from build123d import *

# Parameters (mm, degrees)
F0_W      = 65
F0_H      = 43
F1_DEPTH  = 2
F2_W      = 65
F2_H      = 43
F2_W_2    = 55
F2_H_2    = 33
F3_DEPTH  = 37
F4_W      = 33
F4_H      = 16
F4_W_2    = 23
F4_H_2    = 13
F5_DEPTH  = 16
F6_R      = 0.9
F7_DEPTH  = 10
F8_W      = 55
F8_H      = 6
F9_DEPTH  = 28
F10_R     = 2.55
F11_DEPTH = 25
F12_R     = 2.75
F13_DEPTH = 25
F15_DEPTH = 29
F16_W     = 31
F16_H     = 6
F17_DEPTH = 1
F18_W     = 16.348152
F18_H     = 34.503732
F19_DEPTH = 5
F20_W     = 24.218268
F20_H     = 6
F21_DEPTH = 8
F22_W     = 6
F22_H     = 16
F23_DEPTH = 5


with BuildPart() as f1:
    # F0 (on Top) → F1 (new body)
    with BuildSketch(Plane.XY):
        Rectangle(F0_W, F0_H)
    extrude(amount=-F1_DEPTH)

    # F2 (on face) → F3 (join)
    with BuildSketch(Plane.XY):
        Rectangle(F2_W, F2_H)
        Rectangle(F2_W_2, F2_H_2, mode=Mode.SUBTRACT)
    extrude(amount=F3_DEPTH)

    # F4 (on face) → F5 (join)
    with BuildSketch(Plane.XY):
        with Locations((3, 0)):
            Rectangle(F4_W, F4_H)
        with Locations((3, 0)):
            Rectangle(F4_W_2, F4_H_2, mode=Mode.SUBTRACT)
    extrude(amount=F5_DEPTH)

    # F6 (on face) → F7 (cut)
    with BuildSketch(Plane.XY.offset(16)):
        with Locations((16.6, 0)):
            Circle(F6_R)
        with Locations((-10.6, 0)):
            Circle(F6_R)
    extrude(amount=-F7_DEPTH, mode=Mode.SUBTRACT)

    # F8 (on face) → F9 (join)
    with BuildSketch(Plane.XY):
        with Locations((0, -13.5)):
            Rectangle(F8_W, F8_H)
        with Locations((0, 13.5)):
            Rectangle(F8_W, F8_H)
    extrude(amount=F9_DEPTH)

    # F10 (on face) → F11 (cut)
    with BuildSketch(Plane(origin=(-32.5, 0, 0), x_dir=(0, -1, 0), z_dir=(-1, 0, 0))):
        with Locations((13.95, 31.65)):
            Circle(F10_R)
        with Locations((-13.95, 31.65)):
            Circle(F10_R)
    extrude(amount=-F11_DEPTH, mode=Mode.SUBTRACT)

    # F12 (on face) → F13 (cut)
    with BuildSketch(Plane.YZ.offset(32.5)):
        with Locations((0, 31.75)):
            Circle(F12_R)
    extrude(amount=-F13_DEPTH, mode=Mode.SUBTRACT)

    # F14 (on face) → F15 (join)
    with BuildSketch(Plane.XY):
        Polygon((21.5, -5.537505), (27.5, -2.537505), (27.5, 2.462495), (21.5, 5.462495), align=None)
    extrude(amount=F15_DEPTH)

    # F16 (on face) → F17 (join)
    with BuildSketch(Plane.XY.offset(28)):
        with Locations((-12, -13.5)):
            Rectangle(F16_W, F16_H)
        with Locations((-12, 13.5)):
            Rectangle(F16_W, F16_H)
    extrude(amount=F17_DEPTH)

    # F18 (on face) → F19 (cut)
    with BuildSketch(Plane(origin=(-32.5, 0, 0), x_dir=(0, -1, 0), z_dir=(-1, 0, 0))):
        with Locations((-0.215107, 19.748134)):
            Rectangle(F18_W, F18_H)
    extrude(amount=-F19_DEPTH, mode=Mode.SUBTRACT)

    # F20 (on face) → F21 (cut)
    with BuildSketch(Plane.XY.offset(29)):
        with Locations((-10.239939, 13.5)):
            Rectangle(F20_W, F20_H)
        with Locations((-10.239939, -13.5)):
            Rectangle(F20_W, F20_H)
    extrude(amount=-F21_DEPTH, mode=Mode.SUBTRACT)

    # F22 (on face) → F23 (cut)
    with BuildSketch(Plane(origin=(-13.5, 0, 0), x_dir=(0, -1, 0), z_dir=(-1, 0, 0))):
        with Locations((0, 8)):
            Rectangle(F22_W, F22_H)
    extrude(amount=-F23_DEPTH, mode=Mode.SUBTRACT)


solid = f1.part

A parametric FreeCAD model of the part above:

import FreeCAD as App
import Part
import Sketcher

doc = App.newDocument("Part")
params = doc.addObject("Spreadsheet::Sheet", "Params")
for row, (alias, value) in enumerate([
    ("sketch1_width", "65 mm"),
    ("sketch1_height", "43 mm"),
    ("pad1_length", "2 mm"),
    ("sketch2_width", "65 mm"),
    ("sketch2_width2", "55 mm"),
    ("sketch2_height", "43 mm"),
    ("sketch2_height2", "33 mm"),
    ("pad2_length", "37 mm"),
    ("sketch3_width", "33 mm"),
    ("sketch3_width2", "23 mm"),
    ("sketch3_height", "16 mm"),
    ("sketch3_height2", "13 mm"),
    ("pad3_length", "16 mm"),
    ("sketch4_diameter", "1.8 mm"),
    ("pocket1_length", "10 mm"),
    ("sketch5_width", "55 mm"),
    ("sketch5_height", "6 mm"),
    ("pad4_length", "28 mm"),
    ("sketch6_diameter", "5.1 mm"),
    ("pocket2_length", "25 mm"),
    ("sketch7_diameter", "5.5 mm"),
    ("pocket3_length", "25 mm"),
    ("sketch8_height", "5 mm"),
    ("sketch8_height2", "11 mm"),
    ("pad5_length", "29 mm"),
    ("sketch9_width", "31 mm"),
    ("sketch9_height", "6 mm"),
    ("pad6_length", "1 mm"),
    ("pocket4_length", "5 mm"),
    ("sketch11_height", "6 mm"),
    ("pocket5_length", "8 mm"),
    ("sketch12_width", "6 mm"),
    ("sketch12_height", "16 mm"),
    ("pocket6_length", "5 mm"),
], start=1):
    params.set(f"A{row}", alias)
    params.set(f"B{row}", "=" + value)
    params.setAlias(f"B{row}", alias)

body = doc.addObject("PartDesign::Body", "Body")

sketch1 = body.newObject("Sketcher::SketchObject", "Sketch")
sketch1.AttachmentSupport = (doc.getObject("XY_Plane"), [""])
sketch1.MapMode = "FlatFace"
sketch1.addGeometry([
    Part.LineSegment(App.Vector(-32.5, 21.5, 0), App.Vector(-32.5, -21.5, 0)),
    Part.LineSegment(App.Vector(-32.5, -21.5, 0), App.Vector(32.5, -21.5, 0)),
    Part.LineSegment(App.Vector(32.5, -21.5, 0), App.Vector(32.5, 21.5, 0)),
    Part.LineSegment(App.Vector(32.5, 21.5, 0), App.Vector(-32.5, 21.5, 0)),
], False)
sketch1.addConstraint([
    Sketcher.Constraint("Coincident", 0, 2, 1, 1),
    Sketcher.Constraint("Coincident", 1, 2, 2, 1),
    Sketcher.Constraint("Coincident", 2, 2, 3, 1),
    Sketcher.Constraint("Coincident", 3, 2, 0, 1),
    Sketcher.Constraint("Vertical", 0),
    Sketcher.Constraint("Horizontal", 1),
    Sketcher.Constraint("Vertical", 2),
    Sketcher.Constraint("Horizontal", 3),
    Sketcher.Constraint("Symmetric", 0, 2, 2, 2, -1, 1),
    Sketcher.Constraint("DistanceX", 1, 1, 1, 2, 65.0),
    Sketcher.Constraint("DistanceY", 0, 2, 0, 1, 43.0),
])
sketch1.setExpression("Constraints[9]", "Params.sketch1_width")
sketch1.setExpression("Constraints[10]", "Params.sketch1_height")
pad1 = body.newObject("PartDesign::Pad", "Pad")
pad1.Profile = sketch1
pad1.setExpression("Length", "Params.pad1_length")
pad1.Reversed = True

sketch2 = body.newObject("Sketcher::SketchObject", "Sketch001")
sketch2.AttachmentSupport = (doc.getObject("XY_Plane"), [""])
sketch2.MapMode = "FlatFace"
sketch2.addGeometry([
    Part.LineSegment(App.Vector(-32.5, 21.5, 0), App.Vector(-32.5, -21.5, 0)),
    Part.LineSegment(App.Vector(-32.5, -21.5, 0), App.Vector(32.5, -21.5, 0)),
    Part.LineSegment(App.Vector(32.5, -21.5, 0), App.Vector(32.5, 21.5, 0)),
    Part.LineSegment(App.Vector(32.5, 21.5, 0), App.Vector(-32.5, 21.5, 0)),
    Part.LineSegment(App.Vector(27.5, -16.5, 0), App.Vector(-27.5, -16.5, 0)),
    Part.LineSegment(App.Vector(-27.5, -16.5, 0), App.Vector(-27.5, 16.5, 0)),
    Part.LineSegment(App.Vector(-27.5, 16.5, 0), App.Vector(27.5, 16.5, 0)),
    Part.LineSegment(App.Vector(27.5, 16.5, 0), App.Vector(27.5, -16.5, 0)),
], False)
sketch2.addConstraint([
    Sketcher.Constraint("Coincident", 0, 2, 1, 1),
    Sketcher.Constraint("Coincident", 1, 2, 2, 1),
    Sketcher.Constraint("Coincident", 2, 2, 3, 1),
    Sketcher.Constraint("Coincident", 3, 2, 0, 1),
    Sketcher.Constraint("Coincident", 4, 2, 5, 1),
    Sketcher.Constraint("Coincident", 5, 2, 6, 1),
    Sketcher.Constraint("Coincident", 6, 2, 7, 1),
    Sketcher.Constraint("Coincident", 7, 2, 4, 1),
    Sketcher.Constraint("Vertical", 0),
    Sketcher.Constraint("Horizontal", 1),
    Sketcher.Constraint("Vertical", 2),
    Sketcher.Constraint("Horizontal", 3),
    Sketcher.Constraint("Horizontal", 4),
    Sketcher.Constraint("Vertical", 5),
    Sketcher.Constraint("Horizontal", 6),
    Sketcher.Constraint("Vertical", 7),
    Sketcher.Constraint("Symmetric", 0, 2, 2, 2, -1, 1),
    Sketcher.Constraint("Symmetric", 4, 2, 6, 2, -1, 1),
    Sketcher.Constraint("DistanceX", 1, 1, 1, 2, 65.0),
    Sketcher.Constraint("DistanceX", 4, 2, 4, 1, 55.0),
    Sketcher.Constraint("DistanceY", 0, 2, 0, 1, 43.0),
    Sketcher.Constraint("DistanceY", 5, 1, 5, 2, 33.0),
])
sketch2.setExpression("Constraints[18]", "Params.sketch2_width")
sketch2.setExpression("Constraints[19]", "Params.sketch2_width2")
sketch2.setExpression("Constraints[20]", "Params.sketch2_height")
sketch2.setExpression("Constraints[21]", "Params.sketch2_height2")
pad2 = body.newObject("PartDesign::Pad", "Pad001")
pad2.Profile = sketch2
pad2.setExpression("Length", "Params.pad2_length")

sketch3 = body.newObject("Sketcher::SketchObject", "Sketch002")
sketch3.AttachmentSupport = (doc.getObject("XY_Plane"), [""])
sketch3.MapMode = "FlatFace"
sketch3.addGeometry([
    Part.LineSegment(App.Vector(-13.5, 8, 0), App.Vector(-13.5, -8, 0)),
    Part.LineSegment(App.Vector(-13.5, -8, 0), App.Vector(19.5, -8, 0)),
    Part.LineSegment(App.Vector(19.5, -8, 0), App.Vector(19.5, 8, 0)),
    Part.LineSegment(App.Vector(19.5, 8, 0), App.Vector(-13.5, 8, 0)),
    Part.LineSegment(App.Vector(14.5, -6.5, 0), App.Vector(-8.5, -6.5, 0)),
    Part.LineSegment(App.Vector(-8.5, -6.5, 0), App.Vector(-8.5, 6.5, 0)),
    Part.LineSegment(App.Vector(-8.5, 6.5, 0), App.Vector(14.5, 6.5, 0)),
    Part.LineSegment(App.Vector(14.5, 6.5, 0), App.Vector(14.5, -6.5, 0)),
], False)
sketch3.addConstraint([
    Sketcher.Constraint("Coincident", 0, 2, 1, 1),
    Sketcher.Constraint("Coincident", 1, 2, 2, 1),
    Sketcher.Constraint("Coincident", 2, 2, 3, 1),
    Sketcher.Constraint("Coincident", 3, 2, 0, 1),
    Sketcher.Constraint("Coincident", 4, 2, 5, 1),
    Sketcher.Constraint("Coincident", 5, 2, 6, 1),
    Sketcher.Constraint("Coincident", 6, 2, 7, 1),
    Sketcher.Constraint("Coincident", 7, 2, 4, 1),
    Sketcher.Constraint("Vertical", 0),
    Sketcher.Constraint("Horizontal", 1),
    Sketcher.Constraint("Vertical", 2),
    Sketcher.Constraint("Horizontal", 3),
    Sketcher.Constraint("Horizontal", 4),
    Sketcher.Constraint("Vertical", 5),
    Sketcher.Constraint("Horizontal", 6),
    Sketcher.Constraint("Vertical", 7),
    Sketcher.Constraint("DistanceX", 1, 1, 1, 2, 33.0),
    Sketcher.Constraint("DistanceX", 4, 2, 4, 1, 23.0),
    Sketcher.Constraint("DistanceY", 0, 2, 0, 1, 16.0),
    Sketcher.Constraint("DistanceY", 5, 1, 5, 2, 13.0),
    Sketcher.Constraint("DistanceY", 0, 2, -1, 1, 8.0),
    Sketcher.Constraint("DistanceX", 0, 2, 4, 2, 5.0),
    Sketcher.Constraint("DistanceX", 0, 2, -1, 1, 13.5),
    Sketcher.Constraint("DistanceY", 4, 2, -1, 1, 6.5),
])
sketch3.setExpression("Constraints[16]", "Params.sketch3_width")
sketch3.setExpression("Constraints[17]", "Params.sketch3_width2")
sketch3.setExpression("Constraints[18]", "Params.sketch3_height")
sketch3.setExpression("Constraints[19]", "Params.sketch3_height2")
pad3 = body.newObject("PartDesign::Pad", "Pad002")
pad3.Profile = sketch3
pad3.setExpression("Length", "Params.pad3_length")

sketch4 = body.newObject("Sketcher::SketchObject", "Sketch003")
sketch4.AttachmentSupport = (doc.getObject("XY_Plane"), [""])
sketch4.MapMode = "FlatFace"
sketch4.AttachmentOffset = App.Placement(App.Vector(0, 0, 16), App.Rotation())
sketch4.addGeometry([
    Part.Circle(App.Vector(16.6, 0, 0), App.Vector(0, 0, 1), 0.9),
    Part.Circle(App.Vector(-10.6, 0, 0), App.Vector(0, 0, 1), 0.9),
], False)
sketch4.addConstraint([
    Sketcher.Constraint("Equal", 0, 1),
    Sketcher.Constraint("PointOnObject", 0, 3, -1),
    Sketcher.Constraint("PointOnObject", 1, 3, -1),
    Sketcher.Constraint("Diameter", 0, 1.8),
    Sketcher.Constraint("DistanceX", -1, 1, 0, 3, 16.6),
    Sketcher.Constraint("DistanceX", 1, 3, -1, 1, 10.6),
])
sketch4.setExpression("Constraints[3]", "Params.sketch4_diameter")
pocket1 = body.newObject("PartDesign::Pocket", "Pocket")
pocket1.Profile = sketch4
pocket1.setExpression("Length", "Params.pocket1_length")

sketch5 = body.newObject("Sketcher::SketchObject", "Sketch004")
sketch5.AttachmentSupport = (doc.getObject("XY_Plane"), [""])
sketch5.MapMode = "FlatFace"
sketch5.addGeometry([
    Part.LineSegment(App.Vector(-27.5, -10.5, 0), App.Vector(-27.5, -16.5, 0)),
    Part.LineSegment(App.Vector(-27.5, -16.5, 0), App.Vector(27.5, -16.5, 0)),
    Part.LineSegment(App.Vector(27.5, -16.5, 0), App.Vector(27.5, -10.5, 0)),
    Part.LineSegment(App.Vector(27.5, -10.5, 0), App.Vector(-27.5, -10.5, 0)),
    Part.LineSegment(App.Vector(-27.5, 16.5, 0), App.Vector(-27.5, 10.5, 0)),
    Part.LineSegment(App.Vector(-27.5, 10.5, 0), App.Vector(27.5, 10.5, 0)),
    Part.LineSegment(App.Vector(27.5, 10.5, 0), App.Vector(27.5, 16.5, 0)),
    Part.LineSegment(App.Vector(27.5, 16.5, 0), App.Vector(-27.5, 16.5, 0)),
], False)
sketch5.addConstraint([
    Sketcher.Constraint("Coincident", 0, 2, 1, 1),
    Sketcher.Constraint("Coincident", 1, 2, 2, 1),
    Sketcher.Constraint("Coincident", 2, 2, 3, 1),
    Sketcher.Constraint("Coincident", 3, 2, 0, 1),
    Sketcher.Constraint("Coincident", 4, 2, 5, 1),
    Sketcher.Constraint("Coincident", 5, 2, 6, 1),
    Sketcher.Constraint("Coincident", 6, 2, 7, 1),
    Sketcher.Constraint("Coincident", 7, 2, 4, 1),
    Sketcher.Constraint("Vertical", 0),
    Sketcher.Constraint("Horizontal", 1),
    Sketcher.Constraint("Vertical", 2),
    Sketcher.Constraint("Horizontal", 3),
    Sketcher.Constraint("Vertical", 4),
    Sketcher.Constraint("Horizontal", 5),
    Sketcher.Constraint("Vertical", 6),
    Sketcher.Constraint("Horizontal", 7),
    Sketcher.Constraint("Symmetric", 2, 2, 4, 2, -1, 1),
    Sketcher.Constraint("Symmetric", 0, 2, 6, 2, -1, 1),
    Sketcher.Constraint("Vertical", 3, 2, 4, 2),
    Sketcher.Constraint("DistanceX", 1, 1, 1, 2, 55.0),
    Sketcher.Constraint("DistanceY", 0, 2, 0, 1, 6.0),
    Sketcher.Constraint("DistanceY", 3, 2, 4, 2, 21.0),
])
sketch5.setExpression("Constraints[19]", "Params.sketch5_width")
sketch5.setExpression("Constraints[20]", "Params.sketch5_height")
pad4 = body.newObject("PartDesign::Pad", "Pad003")
pad4.Profile = sketch5
pad4.setExpression("Length", "Params.pad4_length")

sketch6 = body.newObject("Sketcher::SketchObject", "Sketch005")
sketch6.AttachmentSupport = (doc.getObject("YZ_Plane"), [""])
sketch6.MapMode = "FlatFace"
sketch6.AttachmentOffset = App.Placement(App.Vector(0, 0, -32.5), App.Rotation())
sketch6.addGeometry([
    Part.Circle(App.Vector(-13.95, 31.65, 0), App.Vector(0, 0, 1), 2.55),
    Part.Circle(App.Vector(13.95, 31.65, 0), App.Vector(0, 0, 1), 2.55),
], False)
sketch6.addConstraint([
    Sketcher.Constraint("Equal", 0, 1),
    Sketcher.Constraint("Symmetric", 0, 3, 1, 3, -2),
    Sketcher.Constraint("Diameter", 0, 5.1),
    Sketcher.Constraint("DistanceX", 0, 3, 1, 3, 27.9),
    Sketcher.Constraint("DistanceY", -1, 1, 0, 3, 31.65),
])
sketch6.setExpression("Constraints[2]", "Params.sketch6_diameter")
pocket2 = body.newObject("PartDesign::Pocket", "Pocket001")
pocket2.Profile = sketch6
pocket2.setExpression("Length", "Params.pocket2_length")
pocket2.Reversed = True

sketch7 = body.newObject("Sketcher::SketchObject", "Sketch006")
sketch7.AttachmentSupport = (doc.getObject("YZ_Plane"), [""])
sketch7.MapMode = "FlatFace"
sketch7.AttachmentOffset = App.Placement(App.Vector(0, 0, 32.5), App.Rotation())
sketch7.addGeometry(Part.Circle(App.Vector(0, 31.75, 0), App.Vector(0, 0, 1), 2.75), False)
sketch7.addConstraint([
    Sketcher.Constraint("PointOnObject", 0, 3, -2),
    Sketcher.Constraint("Diameter", 0, 5.5),
    Sketcher.Constraint("DistanceY", -1, 1, 0, 3, 31.75),
])
sketch7.setExpression("Constraints[1]", "Params.sketch7_diameter")
pocket3 = body.newObject("PartDesign::Pocket", "Pocket002")
pocket3.Profile = sketch7
pocket3.setExpression("Length", "Params.pocket3_length")

sketch8 = body.newObject("Sketcher::SketchObject", "Sketch007")
sketch8.AttachmentSupport = (doc.getObject("XY_Plane"), [""])
sketch8.MapMode = "FlatFace"
sketch8.addGeometry([
    Part.LineSegment(App.Vector(21.5, -5.537505, 0), App.Vector(27.5, -2.537505, 0)),
    Part.LineSegment(App.Vector(27.5, -2.537505, 0), App.Vector(27.5, 2.462495, 0)),
    Part.LineSegment(App.Vector(27.5, 2.462495, 0), App.Vector(21.5, 5.462495, 0)),
    Part.LineSegment(App.Vector(21.5, 5.462495, 0), App.Vector(21.5, -5.537505, 0)),
], False)
sketch8.addConstraint([
    Sketcher.Constraint("Coincident", 0, 2, 1, 1),
    Sketcher.Constraint("Coincident", 1, 2, 2, 1),
    Sketcher.Constraint("Coincident", 2, 2, 3, 1),
    Sketcher.Constraint("Coincident", 3, 2, 0, 1),
    Sketcher.Constraint("Vertical", 1),
    Sketcher.Constraint("Vertical", 3),
    Sketcher.Constraint("Equal", 0, 2),
    Sketcher.Constraint("DistanceY", 1, 1, 1, 2, 5.0),
    Sketcher.Constraint("DistanceY", 3, 2, 3, 1, 11.0),
    Sketcher.Constraint("DistanceX", 2, 2, 1, 2, 6.0),
    Sketcher.Constraint("DistanceX", -1, 1, 0, 2, 27.5),
    Sketcher.Constraint("DistanceY", 0, 2, -1, 1, 2.537505),
])
sketch8.setExpression("Constraints[7]", "Params.sketch8_height")
sketch8.setExpression("Constraints[8]", "Params.sketch8_height2")
pad5 = body.newObject("PartDesign::Pad", "Pad004")
pad5.Profile = sketch8
pad5.setExpression("Length", "Params.pad5_length")

sketch9 = body.newObject("Sketcher::SketchObject", "Sketch008")
sketch9.AttachmentSupport = (doc.getObject("XY_Plane"), [""])
sketch9.MapMode = "FlatFace"
sketch9.AttachmentOffset = App.Placement(App.Vector(0, 0, 28), App.Rotation())
sketch9.addGeometry([
    Part.LineSegment(App.Vector(-27.5, -10.5, 0), App.Vector(-27.5, -16.5, 0)),
    Part.LineSegment(App.Vector(-27.5, -16.5, 0), App.Vector(3.5, -16.5, 0)),
    Part.LineSegment(App.Vector(3.5, -16.5, 0), App.Vector(3.5, -10.5, 0)),
    Part.LineSegment(App.Vector(3.5, -10.5, 0), App.Vector(-27.5, -10.5, 0)),
    Part.LineSegment(App.Vector(-27.5, 16.5, 0), App.Vector(-27.5, 10.5, 0)),
    Part.LineSegment(App.Vector(-27.5, 10.5, 0), App.Vector(3.5, 10.5, 0)),
    Part.LineSegment(App.Vector(3.5, 10.5, 0), App.Vector(3.5, 16.5, 0)),
    Part.LineSegment(App.Vector(3.5, 16.5, 0), App.Vector(-27.5, 16.5, 0)),
], False)
sketch9.addConstraint([
    Sketcher.Constraint("Coincident", 0, 2, 1, 1),
    Sketcher.Constraint("Coincident", 1, 2, 2, 1),
    Sketcher.Constraint("Coincident", 2, 2, 3, 1),
    Sketcher.Constraint("Coincident", 3, 2, 0, 1),
    Sketcher.Constraint("Coincident", 4, 2, 5, 1),
    Sketcher.Constraint("Coincident", 5, 2, 6, 1),
    Sketcher.Constraint("Coincident", 6, 2, 7, 1),
    Sketcher.Constraint("Coincident", 7, 2, 4, 1),
    Sketcher.Constraint("Vertical", 0),
    Sketcher.Constraint("Horizontal", 1),
    Sketcher.Constraint("Vertical", 2),
    Sketcher.Constraint("Horizontal", 3),
    Sketcher.Constraint("Vertical", 4),
    Sketcher.Constraint("Horizontal", 5),
    Sketcher.Constraint("Vertical", 6),
    Sketcher.Constraint("Horizontal", 7),
    Sketcher.Constraint("Symmetric", 3, 2, 4, 2, -1),
    Sketcher.Constraint("Symmetric", 1, 2, 6, 2, -1),
    Sketcher.Constraint("DistanceX", 1, 1, 1, 2, 31.0),
    Sketcher.Constraint("DistanceY", 0, 2, 0, 1, 6.0),
    Sketcher.Constraint("DistanceY", 3, 2, 4, 2, 21.0),
    Sketcher.Constraint("DistanceX", 0, 2, -1, 1, 27.5),
])
sketch9.setExpression("Constraints[18]", "Params.sketch9_width")
sketch9.setExpression("Constraints[19]", "Params.sketch9_height")
pad6 = body.newObject("PartDesign::Pad", "Pad005")
pad6.Profile = sketch9
pad6.setExpression("Length", "Params.pad6_length")

sketch10 = body.newObject("Sketcher::SketchObject", "Sketch009")
sketch10.AttachmentSupport = (doc.getObject("YZ_Plane"), [""])
sketch10.MapMode = "FlatFace"
sketch10.AttachmentOffset = App.Placement(App.Vector(0, 0, -32.5), App.Rotation())
sketch10.addGeometry([
    Part.LineSegment(App.Vector(8.389183, 37, 0), App.Vector(8.389183, 2.496268, 0)),
    Part.LineSegment(App.Vector(8.389183, 2.496268, 0), App.Vector(-7.958969, 2.496268, 0)),
    Part.LineSegment(App.Vector(-7.958969, 2.496268, 0), App.Vector(-7.958969, 37, 0)),
    Part.LineSegment(App.Vector(-7.958969, 37, 0), App.Vector(8.389183, 37, 0)),
], False)
sketch10.addConstraint([
    Sketcher.Constraint("Coincident", 0, 2, 1, 1),
    Sketcher.Constraint("Coincident", 1, 2, 2, 1),
    Sketcher.Constraint("Coincident", 2, 2, 3, 1),
    Sketcher.Constraint("Coincident", 3, 2, 0, 1),
    Sketcher.Constraint("Vertical", 0),
    Sketcher.Constraint("Horizontal", 1),
    Sketcher.Constraint("Vertical", 2),
    Sketcher.Constraint("Horizontal", 3),
    Sketcher.Constraint("DistanceY", -1, 1, 2, 2, 37.0),
    Sketcher.Constraint("DistanceX", 1, 2, 1, 1, 16.348152),
    Sketcher.Constraint("DistanceY", 0, 2, 0, 1, 34.503732),
    Sketcher.Constraint("DistanceX", 1, 2, -1, 1, 7.958969),
])
pocket4 = body.newObject("PartDesign::Pocket", "Pocket003")
pocket4.Profile = sketch10
pocket4.setExpression("Length", "Params.pocket4_length")
pocket4.Reversed = True

sketch11 = body.newObject("Sketcher::SketchObject", "Sketch010")
sketch11.AttachmentSupport = (doc.getObject("XY_Plane"), [""])
sketch11.MapMode = "FlatFace"
sketch11.AttachmentOffset = App.Placement(App.Vector(0, 0, 29), App.Rotation())
sketch11.addGeometry([
    Part.LineSegment(App.Vector(-22.349073, 16.5, 0), App.Vector(-22.349073, 10.5, 0)),
    Part.LineSegment(App.Vector(-22.349073, 10.5, 0), App.Vector(1.869195, 10.5, 0)),
    Part.LineSegment(App.Vector(1.869195, 10.5, 0), App.Vector(1.869195, 16.5, 0)),
    Part.LineSegment(App.Vector(1.869195, 16.5, 0), App.Vector(-22.349073, 16.5, 0)),
    Part.LineSegment(App.Vector(-22.349073, -10.5, 0), App.Vector(-22.349073, -16.5, 0)),
    Part.LineSegment(App.Vector(-22.349073, -16.5, 0), App.Vector(1.869195, -16.5, 0)),
    Part.LineSegment(App.Vector(1.869195, -16.5, 0), App.Vector(1.869195, -10.5, 0)),
    Part.LineSegment(App.Vector(1.869195, -10.5, 0), App.Vector(-22.349073, -10.5, 0)),
], False)
sketch11.addConstraint([
    Sketcher.Constraint("Coincident", 0, 2, 1, 1),
    Sketcher.Constraint("Coincident", 1, 2, 2, 1),
    Sketcher.Constraint("Coincident", 2, 2, 3, 1),
    Sketcher.Constraint("Coincident", 3, 2, 0, 1),
    Sketcher.Constraint("Coincident", 4, 2, 5, 1),
    Sketcher.Constraint("Coincident", 5, 2, 6, 1),
    Sketcher.Constraint("Coincident", 6, 2, 7, 1),
    Sketcher.Constraint("Coincident", 7, 2, 4, 1),
    Sketcher.Constraint("Vertical", 0),
    Sketcher.Constraint("Horizontal", 1),
    Sketcher.Constraint("Vertical", 2),
    Sketcher.Constraint("Horizontal", 3),
    Sketcher.Constraint("Vertical", 4),
    Sketcher.Constraint("Horizontal", 5),
    Sketcher.Constraint("Vertical", 6),
    Sketcher.Constraint("Horizontal", 7),
    Sketcher.Constraint("Symmetric", 3, 2, 4, 2, -1),
    Sketcher.Constraint("Symmetric", 1, 2, 6, 2, -1),
    Sketcher.Constraint("DistanceY", 0, 2, 0, 1, 6.0),
    Sketcher.Constraint("DistanceY", 4, 2, 0, 2, 27.0),
    Sketcher.Constraint("DistanceX", 1, 1, 1, 2, 24.218268),
    Sketcher.Constraint("DistanceX", 0, 2, -1, 1, 22.349073),
])
sketch11.setExpression("Constraints[18]", "Params.sketch11_height")
pocket5 = body.newObject("PartDesign::Pocket", "Pocket004")
pocket5.Profile = sketch11
pocket5.setExpression("Length", "Params.pocket5_length")

sketch12 = body.newObject("Sketcher::SketchObject", "Sketch011")
sketch12.AttachmentSupport = (doc.getObject("YZ_Plane"), [""])
sketch12.MapMode = "FlatFace"
sketch12.AttachmentOffset = App.Placement(App.Vector(0, 0, -13.5), App.Rotation())
sketch12.addGeometry([
    Part.LineSegment(App.Vector(3, 16, 0), App.Vector(3, 0, 0)),
    Part.LineSegment(App.Vector(3, 0, 0), App.Vector(-3, 0, 0)),
    Part.LineSegment(App.Vector(-3, 0, 0), App.Vector(-3, 16, 0)),
    Part.LineSegment(App.Vector(-3, 16, 0), App.Vector(3, 16, 0)),
], False)
sketch12.addConstraint([
    Sketcher.Constraint("Coincident", 0, 2, 1, 1),
    Sketcher.Constraint("Coincident", 1, 2, 2, 1),
    Sketcher.Constraint("Coincident", 2, 2, 3, 1),
    Sketcher.Constraint("Coincident", 3, 2, 0, 1),
    Sketcher.Constraint("Vertical", 0),
    Sketcher.Constraint("Horizontal", 1),
    Sketcher.Constraint("Vertical", 2),
    Sketcher.Constraint("Horizontal", 3),
    Sketcher.Constraint("Symmetric", 0, 2, 1, 2, -1, 1),
    Sketcher.Constraint("DistanceX", 1, 2, 1, 1, 6.0),
    Sketcher.Constraint("DistanceY", 0, 2, 0, 1, 16.0),
])
sketch12.setExpression("Constraints[9]", "Params.sketch12_width")
sketch12.setExpression("Constraints[10]", "Params.sketch12_height")
pocket6 = body.newObject("PartDesign::Pocket", "Pocket005")
pocket6.Profile = sketch12
pocket6.setExpression("Length", "Params.pocket6_length")
pocket6.Reversed = True

doc.recompute()
